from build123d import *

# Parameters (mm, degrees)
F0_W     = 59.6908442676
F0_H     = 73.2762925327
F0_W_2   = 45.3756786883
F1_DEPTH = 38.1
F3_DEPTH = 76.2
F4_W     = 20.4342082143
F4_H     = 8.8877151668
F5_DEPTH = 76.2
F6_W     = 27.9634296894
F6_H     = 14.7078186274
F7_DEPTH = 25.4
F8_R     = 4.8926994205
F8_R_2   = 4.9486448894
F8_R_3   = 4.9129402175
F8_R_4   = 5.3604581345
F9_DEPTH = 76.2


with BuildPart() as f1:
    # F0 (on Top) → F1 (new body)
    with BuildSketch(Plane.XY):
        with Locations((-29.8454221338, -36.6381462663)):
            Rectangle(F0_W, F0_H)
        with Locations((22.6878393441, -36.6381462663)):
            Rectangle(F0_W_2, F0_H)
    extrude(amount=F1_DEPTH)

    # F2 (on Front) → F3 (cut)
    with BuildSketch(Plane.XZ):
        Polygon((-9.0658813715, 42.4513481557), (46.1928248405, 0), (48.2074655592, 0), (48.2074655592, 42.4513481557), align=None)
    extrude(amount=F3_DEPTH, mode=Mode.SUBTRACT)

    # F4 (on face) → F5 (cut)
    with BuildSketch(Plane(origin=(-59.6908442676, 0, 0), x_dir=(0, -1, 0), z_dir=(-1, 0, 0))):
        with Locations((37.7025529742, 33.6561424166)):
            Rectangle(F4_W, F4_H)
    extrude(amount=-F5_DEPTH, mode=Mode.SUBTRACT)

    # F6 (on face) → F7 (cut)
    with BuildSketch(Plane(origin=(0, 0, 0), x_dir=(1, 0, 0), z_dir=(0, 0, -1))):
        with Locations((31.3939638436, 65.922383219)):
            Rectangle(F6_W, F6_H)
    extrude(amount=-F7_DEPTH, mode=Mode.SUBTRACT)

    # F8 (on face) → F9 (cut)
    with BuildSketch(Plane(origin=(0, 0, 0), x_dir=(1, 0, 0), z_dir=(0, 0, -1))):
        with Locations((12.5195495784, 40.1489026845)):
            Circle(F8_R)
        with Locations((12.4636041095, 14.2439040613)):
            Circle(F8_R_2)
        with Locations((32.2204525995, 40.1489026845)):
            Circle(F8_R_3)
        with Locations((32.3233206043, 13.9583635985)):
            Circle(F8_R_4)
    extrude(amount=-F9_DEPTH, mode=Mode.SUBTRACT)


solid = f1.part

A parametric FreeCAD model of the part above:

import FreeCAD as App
import Part
import Sketcher
Q = App.Units.Quantity


def add_polygon(sketch, points):
    """Adds a closed chain of lines whose ends are joined by coincident constraints."""
    first, n = sketch.GeometryCount, len(points)
    for a, b in zip(points, points[1:] + points[:1]):
        sketch.addGeometry(Part.LineSegment(App.Vector(*a, 0), App.Vector(*b, 0)), False)
    for i in range(n):
        sketch.addConstraint(Sketcher.Constraint("Coincident", first + i, 2, first + (i + 1) % n, 1))

doc = App.newDocument("Part")
body = doc.addObject("PartDesign::Body", "Body")

sketch1 = body.newObject("Sketcher::SketchObject", "Sketch")
sketch1.AttachmentSupport = (doc.getObject("XY_Plane"), [""])
sketch1.MapMode = "FlatFace"
add_polygon(sketch1, [(-60, 0), (-60, -73), (45, -73), (45, 0)])
sketch1.addConstraint(Sketcher.Constraint("Vertical", 0))
sketch1.addConstraint(Sketcher.Constraint("Horizontal", 1))
sketch1.addConstraint(Sketcher.Constraint("Vertical", 2))
sketch1.addConstraint(Sketcher.Constraint("Horizontal", 3))
sketch1.addConstraint(Sketcher.Constraint("PointOnObject", 2, 2, -1))
sketch1.addConstraint(Sketcher.Constraint("DistanceX", 1, 1, 1, 2, Q("105.066523 mm")))
sketch1.addConstraint(Sketcher.Constraint("DistanceY", 0, 2, 0, 1, Q("73.276293 mm")))
sketch1.addConstraint(Sketcher.Constraint("DistanceX", -1, 1, 1, 2, Q("45.375679 mm")))
pad1 = body.newObject("PartDesign::Pad", "Pad")
pad1.Profile = sketch1
pad1.Length = Q("1.5 in")

sketch2 = body.newObject("Sketcher::SketchObject", "Sketch001")
sketch2.AttachmentSupport = (doc.getObject("XZ_Plane"), [""])
sketch2.MapMode = "FlatFace"
add_polygon(sketch2, [(-9.1, 42.5), (46.2, 0), (48.2, 0), (48.2, 42.5)])
sketch2.addConstraint(Sketcher.Constraint("Horizontal", 1))
sketch2.addConstraint(Sketcher.Constraint("Vertical", 2))
sketch2.addConstraint(Sketcher.Constraint("Horizontal", 3))
sketch2.addConstraint(Sketcher.Constraint("PointOnObject", 0, 2, -1))
sketch2.addConstraint(Sketcher.Constraint("DistanceX", 1, 1, 1, 2, Q("2.014641 mm")))
sketch2.addConstraint(Sketcher.Constraint("DistanceY", 2, 1, 2, 2, Q("42.451348 mm")))
sketch2.addConstraint(Sketcher.Constraint("DistanceX", 3, 2, 3, 1, Q("57.273347 mm")))
sketch2.addConstraint(Sketcher.Constraint("DistanceX", 3, 2, -1, 1, Q("9.065881 mm")))
pocket1 = body.newObject("PartDesign::Pocket", "Pocket")
pocket1.Profile = sketch2
pocket1.Length = Q("3 in")
pocket1.Reversed = True

sketch3 = body.newObject("Sketcher::SketchObject", "Sketch002")
sketch3.AttachmentSupport = (doc.getObject("YZ_Plane"), [""])
sketch3.MapMode = "FlatFace"
sketch3.AttachmentOffset = App.Placement(App.Vector(0, 0, -59.690844), App.Rotation())
add_polygon(sketch3, [(-27, 38), (-27, 29), (-48, 29), (-48, 38)])
sketch3.addConstraint(Sketcher.Constraint("Vertical", 0))
sketch3.addConstraint(Sketcher.Constraint("Horizontal", 1))
sketch3.addConstraint(Sketcher.Constraint("Vertical", 2))
sketch3.addConstraint(Sketcher.Constraint("Horizontal", 3))
sketch3.addConstraint(Sketcher.Constraint("DistanceY", -1, 1, 2, 2, Q("1.5 in")))
sketch3.addConstraint(Sketcher.Constraint("DistanceX", 1, 2, 1, 1, Q("20.434208 mm")))
sketch3.addConstraint(Sketcher.Constraint("DistanceY", 0, 2, 0, 1, Q("8.887715 mm")))
sketch3.addConstraint(Sketcher.Constraint("DistanceX", 0, 2, -1, 1, Q("27.485449 mm")))
pocket2 = body.newObject("PartDesign::Pocket", "Pocket001")
pocket2.Profile = sketch3
pocket2.Length = Q("3 in")
pocket2.Reversed = True

sketch4 = body.newObject("Sketcher::SketchObject", "Sketch003")
sketch4.AttachmentSupport = (doc.getObject("XY_Plane"), [""])
sketch4.MapMode = "FlatFace"
add_polygon(sketch4, [(17, -73), (17, -59), (45, -59), (45, -73)])
sketch4.addConstraint(Sketcher.Constraint("Vertical", 0))
sketch4.addConstraint(Sketcher.Constraint("Horizontal", 1))
sketch4.addConstraint(Sketcher.Constraint("Vertical", 2))
sketch4.addConstraint(Sketcher.Constraint("Horizontal", 3))
sketch4.addConstraint(Sketcher.Constraint("DistanceX", 1, 1, 1, 2, Q("27.96343 mm")))
sketch4.addConstraint(Sketcher.Constraint("DistanceY", 0, 1, 0, 2, Q("14.707819 mm")))
sketch4.addConstraint(Sketcher.Constraint("DistanceX", -1, 1, 0, 2, Q("17.412249 mm")))
sketch4.addConstraint(Sketcher.Constraint("DistanceY", 0, 2, -1, 1, Q("58.568474 mm")))
pocket3 = body.newObject("PartDesign::Pocket", "Pocket002")
pocket3.Profile = sketch4
pocket3.Length = Q("1 in")
pocket3.Reversed = True

sketch5 = body.newObject("Sketcher::SketchObject", "Sketch004")
sketch5.AttachmentSupport = (doc.getObject("XY_Plane"), [""])
sketch5.MapMode = "FlatFace"
sketch5.addGeometry(Part.Circle(App.Vector(12.5, -40.1, 0), App.Vector(0, 0, 1), 4.9), False)
sketch5.addGeometry(Part.Circle(App.Vector(12.5, -14.2, 0), App.Vector(0, 0, 1), 4.9), False)
sketch5.addGeometry(Part.Circle(App.Vector(32.2, -40.1, 0), App.Vector(0, 0, 1), 4.9), False)
sketch5.addGeometry(Part.Circle(App.Vector(32.3, -14, 0), App.Vector(0, 0, 1), 5.4), False)
sketch5.addConstraint(Sketcher.Constraint("Horizontal", 0, 3, 2, 3))
sketch5.addConstraint(Sketcher.Constraint("Diameter", 0, Q("9.785399 mm")))
sketch5.addConstraint(Sketcher.Constraint("Diameter", 1, Q("9.89729 mm")))
sketch5.addConstraint(Sketcher.Constraint("Diameter", 2, Q("9.82588 mm")))
sketch5.addConstraint(Sketcher.Constraint("Diameter", 3, Q("10.720916 mm")))
sketch5.addConstraint(Sketcher.Constraint("DistanceY", 0, 3, 1, 3, Q("25.904999 mm")))
sketch5.addConstraint(Sketcher.Constraint("DistanceX", -1, 1, 0, 3, Q("12.51955 mm")))
sketch5.addConstraint(Sketcher.Constraint("DistanceX", -1, 1, 3, 3, Q("32.323321 mm")))
sketch5.addConstraint(Sketcher.Constraint("DistanceX", 1, 3, 2, 3, Q("19.756848 mm")))
sketch5.addConstraint(Sketcher.Constraint("DistanceY", 1, 3, 3, 3, Q("0.28554 mm")))
sketch5.addConstraint(Sketcher.Constraint("DistanceX", 2, 3, 3, 3, Q("0.102868 mm")))
sketch5.addConstraint(Sketcher.Constraint("DistanceY", 0, 3, -1, 1, Q("40.148903 mm")))
pocket4 = body.newObject("PartDesign::Pocket", "Pocket003")
pocket4.Profile = sketch5
pocket4.Length = Q("3 in")
pocket4.Reversed = True

doc.recompute()
